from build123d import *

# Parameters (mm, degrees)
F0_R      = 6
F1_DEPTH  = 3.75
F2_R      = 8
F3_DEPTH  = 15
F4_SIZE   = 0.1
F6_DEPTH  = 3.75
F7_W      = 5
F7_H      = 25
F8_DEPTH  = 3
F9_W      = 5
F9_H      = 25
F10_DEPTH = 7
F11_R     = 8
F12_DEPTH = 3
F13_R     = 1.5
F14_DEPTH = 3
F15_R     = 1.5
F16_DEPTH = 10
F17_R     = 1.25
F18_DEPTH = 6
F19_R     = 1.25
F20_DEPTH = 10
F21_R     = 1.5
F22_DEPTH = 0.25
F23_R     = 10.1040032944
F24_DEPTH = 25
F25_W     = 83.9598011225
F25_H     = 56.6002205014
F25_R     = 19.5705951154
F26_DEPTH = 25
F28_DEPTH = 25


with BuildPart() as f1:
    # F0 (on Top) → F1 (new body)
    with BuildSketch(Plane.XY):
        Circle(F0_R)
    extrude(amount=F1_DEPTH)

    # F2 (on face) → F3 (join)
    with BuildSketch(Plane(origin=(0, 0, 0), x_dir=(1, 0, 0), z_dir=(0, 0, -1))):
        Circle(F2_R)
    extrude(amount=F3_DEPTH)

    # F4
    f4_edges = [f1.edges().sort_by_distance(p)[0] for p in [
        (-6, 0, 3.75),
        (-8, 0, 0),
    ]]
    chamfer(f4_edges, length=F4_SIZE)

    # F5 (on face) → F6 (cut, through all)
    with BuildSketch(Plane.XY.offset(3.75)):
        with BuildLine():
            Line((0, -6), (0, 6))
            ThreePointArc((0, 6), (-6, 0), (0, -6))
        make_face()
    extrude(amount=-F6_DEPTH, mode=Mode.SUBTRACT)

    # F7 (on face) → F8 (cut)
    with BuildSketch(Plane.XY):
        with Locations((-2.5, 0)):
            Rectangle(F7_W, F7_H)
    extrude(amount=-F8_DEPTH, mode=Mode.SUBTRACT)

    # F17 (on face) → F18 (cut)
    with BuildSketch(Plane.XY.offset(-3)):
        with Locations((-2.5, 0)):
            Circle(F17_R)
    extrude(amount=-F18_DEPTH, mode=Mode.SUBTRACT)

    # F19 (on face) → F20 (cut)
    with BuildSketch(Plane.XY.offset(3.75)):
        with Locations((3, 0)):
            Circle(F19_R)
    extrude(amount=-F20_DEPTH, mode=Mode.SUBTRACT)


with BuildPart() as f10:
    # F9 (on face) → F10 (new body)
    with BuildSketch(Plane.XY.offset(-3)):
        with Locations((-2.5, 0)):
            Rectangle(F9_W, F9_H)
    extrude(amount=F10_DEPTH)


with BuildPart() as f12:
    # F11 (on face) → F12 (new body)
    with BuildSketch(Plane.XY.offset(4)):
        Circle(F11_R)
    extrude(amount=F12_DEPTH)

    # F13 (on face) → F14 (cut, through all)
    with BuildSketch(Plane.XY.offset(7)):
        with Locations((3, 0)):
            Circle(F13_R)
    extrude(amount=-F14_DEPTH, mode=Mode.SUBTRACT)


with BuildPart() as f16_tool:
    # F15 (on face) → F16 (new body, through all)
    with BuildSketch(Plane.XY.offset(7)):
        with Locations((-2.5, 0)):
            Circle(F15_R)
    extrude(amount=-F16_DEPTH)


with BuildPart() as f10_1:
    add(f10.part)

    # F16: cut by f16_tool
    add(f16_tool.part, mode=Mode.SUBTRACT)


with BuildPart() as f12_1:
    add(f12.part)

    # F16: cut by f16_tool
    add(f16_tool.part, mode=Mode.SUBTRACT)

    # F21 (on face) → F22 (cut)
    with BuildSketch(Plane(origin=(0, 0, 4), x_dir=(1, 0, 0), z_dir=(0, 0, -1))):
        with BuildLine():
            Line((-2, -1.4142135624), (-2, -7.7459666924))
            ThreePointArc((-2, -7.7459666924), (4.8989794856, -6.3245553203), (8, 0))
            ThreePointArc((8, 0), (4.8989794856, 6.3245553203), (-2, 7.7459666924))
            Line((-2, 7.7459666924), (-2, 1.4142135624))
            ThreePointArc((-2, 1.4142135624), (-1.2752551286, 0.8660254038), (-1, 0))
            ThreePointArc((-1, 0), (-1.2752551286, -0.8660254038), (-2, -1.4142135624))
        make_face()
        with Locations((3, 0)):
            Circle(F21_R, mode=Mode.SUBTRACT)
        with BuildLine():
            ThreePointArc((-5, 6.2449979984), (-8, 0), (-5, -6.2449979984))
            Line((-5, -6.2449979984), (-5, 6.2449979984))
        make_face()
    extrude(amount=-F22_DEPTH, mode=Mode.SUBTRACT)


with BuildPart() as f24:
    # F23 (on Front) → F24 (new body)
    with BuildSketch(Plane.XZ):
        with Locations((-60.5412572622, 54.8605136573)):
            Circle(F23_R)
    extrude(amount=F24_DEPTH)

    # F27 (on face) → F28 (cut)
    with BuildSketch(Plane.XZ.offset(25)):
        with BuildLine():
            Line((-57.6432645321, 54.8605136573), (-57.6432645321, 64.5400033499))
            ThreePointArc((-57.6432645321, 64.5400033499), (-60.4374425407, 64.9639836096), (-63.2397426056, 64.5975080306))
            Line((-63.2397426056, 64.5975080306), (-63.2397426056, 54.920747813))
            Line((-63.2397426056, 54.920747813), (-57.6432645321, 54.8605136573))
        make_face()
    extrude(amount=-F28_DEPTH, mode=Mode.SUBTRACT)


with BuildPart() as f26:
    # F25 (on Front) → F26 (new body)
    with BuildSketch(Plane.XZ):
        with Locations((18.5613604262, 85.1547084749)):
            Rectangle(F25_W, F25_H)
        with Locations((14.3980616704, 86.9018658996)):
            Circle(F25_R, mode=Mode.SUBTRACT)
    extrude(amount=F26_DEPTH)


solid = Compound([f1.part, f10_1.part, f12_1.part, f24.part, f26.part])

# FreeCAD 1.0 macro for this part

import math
import FreeCAD as App
import Part
import Sketcher

V = App.Vector


def edges_at(feature, points):
    """Names of the edges that pass closest to the given points."""
    edges = feature.Shape.Edges
    near = lambda p: min(range(len(edges)), key=lambda i: edges[i].distToShape(Part.Vertex(*p))[0])
    return sorted({f"Edge{near(p) + 1}" for p in points})

doc = App.newDocument("Part")
body = doc.addObject("PartDesign::Body", "Body")

sketch1 = body.newObject("Sketcher::SketchObject", "Sketch")
sketch1.AttachmentSupport = (doc.getObject("XY_Plane"), [""])
sketch1.MapMode = "FlatFace"
sketch1.addGeometry(Part.Circle(V(0, 0, 0), V(0, 0, 1), 6), False)
sketch1.addConstraint(Sketcher.Constraint("Coincident", 0, 3, -1, 1))
sketch1.addConstraint(Sketcher.Constraint("Diameter", 0, 12.0))
pad1 = body.newObject("PartDesign::Pad", "Pad")
pad1.Profile = sketch1
pad1.Length = 3.75

sketch2 = body.newObject("Sketcher::SketchObject", "Sketch001")
sketch2.AttachmentSupport = (doc.getObject("XY_Plane"), [""])
sketch2.MapMode = "FlatFace"
sketch2.addGeometry(Part.Circle(V(0, 0, 0), V(0, 0, 1), 8), False)
sketch2.addConstraint(Sketcher.Constraint("Coincident", 0, 3, -1, 1))
sketch2.addConstraint(Sketcher.Constraint("Diameter", 0, 16.0))
pad2 = body.newObject("PartDesign::Pad", "Pad001")
pad2.Profile = sketch2
pad2.Length = 15
pad2.Reversed = True
doc.recompute()

chamfer = body.newObject("PartDesign::Chamfer", "Chamfer")
chamfer.Base = (pad2, edges_at(pad2, [(-6, 0, 3.75), (-8, 0, 0)]))
chamfer.Size = 0.1

sketch3 = body.newObject("Sketcher::SketchObject", "Sketch002")
sketch3.AttachmentSupport = (doc.getObject("XY_Plane"), [""])
sketch3.MapMode = "FlatFace"
sketch3.AttachmentOffset = App.Placement(V(0, 0, 3.75), App.Rotation())
sketch3.addGeometry(Part.LineSegment(V(0, -6, 0), V(0, 6, 0)), False)
sketch3.addGeometry(Part.ArcOfCircle(Part.Circle(V(0, 0, 0), V(0, 0, 1), 6), math.radians(90), math.radians(270)), False)
sketch3.addConstraint(Sketcher.Constraint("Coincident", 0, 1, 1, 2))
sketch3.addConstraint(Sketcher.Constraint("Coincident", 1, 1, 0, 2))
sketch3.addConstraint(Sketcher.Constraint("Vertical", 0))
sketch3.addConstraint(Sketcher.Constraint("Coincident", 1, 3, -1, 1))
sketch3.addConstraint(Sketcher.Constraint("PointOnObject", 0, 1, -2))
sketch3.addConstraint(Sketcher.Constraint("Radius", 1, 6.0))
pocket1 = body.newObject("PartDesign::Pocket", "Pocket")
pocket1.Profile = sketch3
pocket1.Length = 3.75

sketch4 = body.newObject("Sketcher::SketchObject", "Sketch003")
sketch4.AttachmentSupport = (doc.getObject("XY_Plane"), [""])
sketch4.MapMode = "FlatFace"
sketch4.addGeometry(Part.LineSegment(V(-5, 12, 0), V(-5, -12, 0)), False)
sketch4.addGeometry(Part.LineSegment(V(-5, -12, 0), V(0, -12, 0)), False)
sketch4.addGeometry(Part.LineSegment(V(0, -12, 0), V(0, 12, 0)), False)
sketch4.addGeometry(Part.LineSegment(V(0, 12, 0), V(-5, 12, 0)), False)
sketch4.addConstraint(Sketcher.Constraint("Coincident", 0, 2, 1, 1))
sketch4.addConstraint(Sketcher.Constraint("Coincident", 1, 2, 2, 1))
sketch4.addConstraint(Sketcher.Constraint("Coincident", 2, 2, 3, 1))
sketch4.addConstraint(Sketcher.Constraint("Coincident", 3, 2, 0, 1))
sketch4.addConstraint(Sketcher.Constraint("Vertical", 0))
sketch4.addConstraint(Sketcher.Constraint("Horizontal", 1))
sketch4.addConstraint(Sketcher.Constraint("Vertical", 2))
sketch4.addConstraint(Sketcher.Constraint("Horizontal", 3))
sketch4.addConstraint(Sketcher.Constraint("Symmetric", 1, 2, 2, 2, -1, 1))
sketch4.addConstraint(Sketcher.Constraint("DistanceX", 1, 1, 1, 2, 5.0))
sketch4.addConstraint(Sketcher.Constraint("DistanceY", 0, 2, 0, 1, 25.0))
pocket2 = body.newObject("PartDesign::Pocket", "Pocket001")
pocket2.Profile = sketch4
pocket2.Length = 3

sketch5 = body.newObject("Sketcher::SketchObject", "Sketch004")
sketch5.AttachmentSupport = (doc.getObject("XY_Plane"), [""])
sketch5.MapMode = "FlatFace"
sketch5.AttachmentOffset = App.Placement(V(0, 0, -3), App.Rotation())
sketch5.addGeometry(Part.Circle(V(-2.5, 0, 0), V(0, 0, 1), 1.2), False)
sketch5.addConstraint(Sketcher.Constraint("PointOnObject", 0, 3, -1))
sketch5.addConstraint(Sketcher.Constraint("Diameter", 0, 2.5))
sketch5.addConstraint(Sketcher.Constraint("DistanceX", 0, 3, -1, 1, 2.5))
pocket3 = body.newObject("PartDesign::Pocket", "Pocket002")
pocket3.Profile = sketch5
pocket3.Length = 6

sketch6 = body.newObject("Sketcher::SketchObject", "Sketch005")
sketch6.AttachmentSupport = (doc.getObject("XY_Plane"), [""])
sketch6.MapMode = "FlatFace"
sketch6.AttachmentOffset = App.Placement(V(0, 0, 3.75), App.Rotation())
sketch6.addGeometry(Part.Circle(V(3, 0, 0), V(0, 0, 1), 1.2), False)
sketch6.addConstraint(Sketcher.Constraint("PointOnObject", 0, 3, -1))
sketch6.addConstraint(Sketcher.Constraint("Diameter", 0, 2.5))
sketch6.addConstraint(Sketcher.Constraint("DistanceX", -1, 1, 0, 3, 3.0))
pocket4 = body.newObject("PartDesign::Pocket", "Pocket003")
pocket4.Profile = sketch6
pocket4.Length = 10
body2 = doc.addObject("PartDesign::Body", "Body001")

sketch7 = body2.newObject("Sketcher::SketchObject", "Sketch006")
sketch7.AttachmentSupport = (doc.getObject("XY_Plane001"), [""])
sketch7.MapMode = "FlatFace"
sketch7.AttachmentOffset = App.Placement(V(0, 0, -3), App.Rotation())
sketch7.addGeometry(Part.LineSegment(V(-5, 12, 0), V(-5, -12, 0)), False)
sketch7.addGeometry(Part.LineSegment(V(-5, -12, 0), V(0, -12, 0)), False)
sketch7.addGeometry(Part.LineSegment(V(0, -12, 0), V(0, 12, 0)), False)
sketch7.addGeometry(Part.LineSegment(V(0, 12, 0), V(-5, 12, 0)), False)
sketch7.addConstraint(Sketcher.Constraint("Coincident", 0, 2, 1, 1))
sketch7.addConstraint(Sketcher.Constraint("Coincident", 1, 2, 2, 1))
sketch7.addConstraint(Sketcher.Constraint("Coincident", 2, 2, 3, 1))
sketch7.addConstraint(Sketcher.Constraint("Coincident", 3, 2, 0, 1))
sketch7.addConstraint(Sketcher.Constraint("Vertical", 0))
sketch7.addConstraint(Sketcher.Constraint("Horizontal", 1))
sketch7.addConstraint(Sketcher.Constraint("Vertical", 2))
sketch7.addConstraint(Sketcher.Constraint("Horizontal", 3))
sketch7.addConstraint(Sketcher.Constraint("Symmetric", 1, 2, 2, 2, -1, 1))
sketch7.addConstraint(Sketcher.Constraint("DistanceX", 1, 1, 1, 2, 5.0))
sketch7.addConstraint(Sketcher.Constraint("DistanceY", 0, 2, 0, 1, 25.0))
pad3 = body2.newObject("PartDesign::Pad", "Pad002")
pad3.Profile = sketch7
pad3.Length = 7
body3 = doc.addObject("PartDesign::Body", "Body002")

sketch8 = body3.newObject("Sketcher::SketchObject", "Sketch007")
sketch8.AttachmentSupport = (doc.getObject("XY_Plane002"), [""])
sketch8.MapMode = "FlatFace"
sketch8.AttachmentOffset = App.Placement(V(0, 0, 4), App.Rotation())
sketch8.addGeometry(Part.Circle(V(0, 0, 0), V(0, 0, 1), 8), False)
sketch8.addConstraint(Sketcher.Constraint("Coincident", 0, 3, -1, 1))
sketch8.addConstraint(Sketcher.Constraint("Diameter", 0, 16.0))
pad4 = body3.newObject("PartDesign::Pad", "Pad003")
pad4.Profile = sketch8
pad4.Length = 3

sketch9 = body3.newObject("Sketcher::SketchObject", "Sketch008")
sketch9.AttachmentSupport = (doc.getObject("XY_Plane002"), [""])
sketch9.MapMode = "FlatFace"
sketch9.AttachmentOffset = App.Placement(V(0, 0, 7), App.Rotation())
sketch9.addGeometry(Part.Circle(V(3, 0, 0), V(0, 0, 1), 1.5), False)
sketch9.addConstraint(Sketcher.Constraint("PointOnObject", 0, 3, -1))
sketch9.addConstraint(Sketcher.Constraint("Diameter", 0, 3.0))
sketch9.addConstraint(Sketcher.Constraint("DistanceX", -1, 1, 0, 3, 3.0))
pocket5 = body3.newObject("PartDesign::Pocket", "Pocket004")
pocket5.Profile = sketch9
pocket5.Type = "ThroughAll"
body4 = doc.addObject("PartDesign::Body", "Body003")

sketch10 = body4.newObject("Sketcher::SketchObject", "Sketch009")
sketch10.AttachmentSupport = (doc.getObject("XY_Plane003"), [""])
sketch10.MapMode = "FlatFace"
sketch10.AttachmentOffset = App.Placement(V(0, 0, 7), App.Rotation())
sketch10.addGeometry(Part.Circle(V(-2.5, 0, 0), V(0, 0, 1), 1.5), False)
sketch10.addConstraint(Sketcher.Constraint("PointOnObject", 0, 3, -1))
sketch10.addConstraint(Sketcher.Constraint("Diameter", 0, 3.0))
sketch10.addConstraint(Sketcher.Constraint("DistanceX", 0, 3, -1, 1, 2.5))
pad5 = body4.newObject("PartDesign::Pad", "Pad004")
pad5.Profile = sketch10
pad5.Length = 10
pad5.Reversed = True
doc.recompute()

body5 = doc.addObject("PartDesign::Body", "Body004")
body5.BaseFeature = body4
boolean = body2.newObject("PartDesign::Boolean", "Boolean")
boolean.Type = "Cut"
boolean.addObjects([body5])
doc.recompute()

boolean2 = body3.newObject("PartDesign::Boolean", "Boolean001")
boolean2.Type = "Cut"
boolean2.addObjects([body4])

sketch11 = body3.newObject("Sketcher::SketchObject", "Sketch010")
sketch11.AttachmentSupport = (doc.getObject("XY_Plane002"), [""])
sketch11.MapMode = "FlatFace"
sketch11.AttachmentOffset = App.Placement(V(0, 0, 4), App.Rotation())
sketch11.addGeometry(Part.LineSegment(V(-2, 1.4, 0), V(-2, 7.7, 0)), False)
sketch11.addGeometry(Part.ArcOfCircle(Part.Circle(V(0, 0, 0), V(0, 0, 1), 8), math.radians(0), math.radians(104)), False)
sketch11.addGeometry(Part.ArcOfCircle(Part.Circle(V(0, 0, 0), V(0, 0, 1), 8), math.radians(-104), math.radians(0)), False)
sketch11.addGeometry(Part.LineSegment(V(-2, -7.7, 0), V(-2, -1.4, 0)), False)
sketch11.addGeometry(Part.ArcOfCircle(Part.Circle(V(-2.5, 0, 0), V(0, 0, 1), 1.5), math.radians(-71), math.radians(0)), False)
sketch11.addGeometry(Part.ArcOfCircle(Part.Circle(V(-2.5, 0, 0), V(0, 0, 1), 1.5), math.radians(0), math.radians(71)), False)
sketch11.addGeometry(Part.Circle(V(3, 0, 0), V(0, 0, 1), 1.5), False)
sketch11.addGeometry(Part.ArcOfCircle(Part.Circle(V(0, 0, 0), V(0, 0, 1), 8), math.radians(129), math.radians(231)), False)
sketch11.addGeometry(Part.LineSegment(V(-5, 6.2, 0), V(-5, -6.2, 0)), False)
sketch11.addConstraint(Sketcher.Constraint("Coincident", 0, 2, 1, 2))
sketch11.addConstraint(Sketcher.Constraint("Tangent", 1, 1, 2, 2))
sketch11.addConstraint(Sketcher.Constraint("Coincident", 2, 1, 3, 1))
sketch11.addConstraint(Sketcher.Constraint("Coincident", 3, 2, 4, 1))
sketch11.addConstraint(Sketcher.Constraint("Tangent", 4, 2, 5, 1))
sketch11.addConstraint(Sketcher.Constraint("Coincident", 5, 2, 0, 1))
sketch11.addConstraint(Sketcher.Constraint("Coincident", 7, 1, 8, 1))
sketch11.addConstraint(Sketcher.Constraint("Coincident", 8, 2, 7, 2))
sketch11.addConstraint(Sketcher.Constraint("Vertical", 0))
sketch11.addConstraint(Sketcher.Constraint("Vertical", 3))
sketch11.addConstraint(Sketcher.Constraint("Vertical", 8))
sketch11.addConstraint(Sketcher.Constraint("Coincident", 1, 3, -1, 1))
sketch11.addConstraint(Sketcher.Constraint("Coincident", 7, 3, -1, 1))
sketch11.addConstraint(Sketcher.Constraint("Equal", 1, 2))
sketch11.addConstraint(Sketcher.Constraint("Equal", 4, 5))
sketch11.addConstraint(Sketcher.Constraint("Equal", 5, 6))
sketch11.addConstraint(Sketcher.Constraint("Equal", 2, 7))
sketch11.addConstraint(Sketcher.Constraint("Symmetric", 3, 2, 5, 2, -1))
sketch11.addConstraint(Sketcher.Constraint("PointOnObject", 6, 3, -1))
sketch11.addConstraint(Sketcher.Constraint("PointOnObject", 1, 1, -1))
sketch11.addConstraint(Sketcher.Constraint("PointOnObject", 4, 2, -1))
sketch11.addConstraint(Sketcher.Constraint("Diameter", 6, 3.0))
sketch11.addConstraint(Sketcher.Constraint("Radius", 1, 8.0))
sketch11.addConstraint(Sketcher.Constraint("DistanceX", -1, 1, 6, 3, 3.0))
sketch11.addConstraint(Sketcher.Constraint("DistanceX", 0, 2, -1, 1, 2.0))
sketch11.addConstraint(Sketcher.Constraint("DistanceX", 4, 2, -1, 1, 1.0))
sketch11.addConstraint(Sketcher.Constraint("DistanceX", 7, 1, -1, 1, 5.0))
pocket6 = body3.newObject("PartDesign::Pocket", "Pocket005")
pocket6.Profile = sketch11
pocket6.Length = 0.25
pocket6.Reversed = True
body6 = doc.addObject("PartDesign::Body", "Body005")

sketch12 = body6.newObject("Sketcher::SketchObject", "Sketch011")
sketch12.AttachmentSupport = (doc.getObject("XZ_Plane005"), [""])
sketch12.MapMode = "FlatFace"
sketch12.addGeometry(Part.Circle(V(-61, 55, 0), V(0, 0, 1), 10), False)
sketch12.addConstraint(Sketcher.Constraint("Diameter", 0, 20.208007))
sketch12.addConstraint(Sketcher.Constraint("DistanceX", 0, 3, -1, 1, 60.541257))
sketch12.addConstraint(Sketcher.Constraint("DistanceY", -1, 1, 0, 3, 54.860514))
pad6 = body6.newObject("PartDesign::Pad", "Pad005")
pad6.Profile = sketch12
pad6.Length = 25

sketch13 = body6.newObject("Sketcher::SketchObject", "Sketch012")
sketch13.AttachmentSupport = (doc.getObject("XZ_Plane005"), [""])
sketch13.MapMode = "FlatFace"
sketch13.AttachmentOffset = App.Placement(V(0, 0, 25), App.Rotation())
sketch13.addGeometry(Part.LineSegment(V(-58, 55, 0), V(-58, 65, 0)), False)
sketch13.addGeometry(Part.ArcOfCircle(Part.Circle(V(-61, 55, 0), V(0, 0, 1), 10), math.radians(73), math.radians(105)), False)
sketch13.addGeometry(Part.LineSegment(V(-63, 65, 0), V(-63, 55, 0)), False)
sketch13.addGeometry(Part.LineSegment(V(-63, 55, 0), V(-58, 55, 0)), False)
sketch13.addConstraint(Sketcher.Constraint("Coincident", 0, 2, 1, 1))
sketch13.addConstraint(Sketcher.Constraint("Coincident", 1, 2, 2, 1))
sketch13.addConstraint(Sketcher.Constraint("Coincident", 2, 2, 3, 1))
sketch13.addConstraint(Sketcher.Constraint("Coincident", 3, 2, 0, 1))
sketch13.addConstraint(Sketcher.Constraint("Vertical", 0))
sketch13.addConstraint(Sketcher.Constraint("Vertical", 2))
sketch13.addConstraint(Sketcher.Constraint("Horizontal", 1, 3, 3, 2))
sketch13.addConstraint(Sketcher.Constraint("Radius", 1, 10.104003))
sketch13.addConstraint(Sketcher.Constraint("DistanceY", 0, 1, 0, 2, 9.67949))
sketch13.addConstraint(Sketcher.Constraint("DistanceY", 2, 2, 2, 1, 9.67676))
sketch13.addConstraint(Sketcher.Constraint("DistanceY", -1, 1, 1, 2, 64.597508))
sketch13.addConstraint(Sketcher.Constraint("DistanceX", 1, 2, 0, 2, 5.596478))
sketch13.addConstraint(Sketcher.Constraint("DistanceX", 1, 3, -1, 1, 60.541257))
pocket7 = body6.newObject("PartDesign::Pocket", "Pocket006")
pocket7.Profile = sketch13
pocket7.Length = 25
body7 = doc.addObject("PartDesign::Body", "Body006")

sketch14 = body7.newObject("Sketcher::SketchObject", "Sketch013")
sketch14.AttachmentSupport = (doc.getObject("XZ_Plane006"), [""])
sketch14.MapMode = "FlatFace"
sketch14.addGeometry(Part.LineSegment(V(-23, 113, 0), V(-23, 57, 0)), False)
sketch14.addGeometry(Part.LineSegment(V(-23, 57, 0), V(61, 57, 0)), False)
sketch14.addGeometry(Part.LineSegment(V(61, 57, 0), V(61, 113, 0)), False)
sketch14.addGeometry(Part.LineSegment(V(61, 113, 0), V(-23, 113, 0)), False)
sketch14.addGeometry(Part.Circle(V(14, 87, 0), V(0, 0, 1), 20), False)
sketch14.addConstraint(Sketcher.Constraint("Coincident", 0, 2, 1, 1))
sketch14.addConstraint(Sketcher.Constraint("Coincident", 1, 2, 2, 1))
sketch14.addConstraint(Sketcher.Constraint("Coincident", 2, 2, 3, 1))
sketch14.addConstraint(Sketcher.Constraint("Coincident", 3, 2, 0, 1))
sketch14.addConstraint(Sketcher.Constraint("Vertical", 0))
sketch14.addConstraint(Sketcher.Constraint("Horizontal", 1))
sketch14.addConstraint(Sketcher.Constraint("Vertical", 2))
sketch14.addConstraint(Sketcher.Constraint("Horizontal", 3))
sketch14.addConstraint(Sketcher.Constraint("Diameter", 4, 39.14119))
sketch14.addConstraint(Sketcher.Constraint("DistanceX", 1, 1, 1, 2, 83.959801))
sketch14.addConstraint(Sketcher.Constraint("DistanceY", 0, 2, 0, 1, 56.600221))
sketch14.addConstraint(Sketcher.Constraint("DistanceY", -1, 1, 0, 2, 56.854598))
sketch14.addConstraint(Sketcher.Constraint("DistanceX", 0, 2, 4, 3, 37.816602))
sketch14.addConstraint(Sketcher.Constraint("DistanceX", -1, 1, 4, 3, 14.398062))
sketch14.addConstraint(Sketcher.Constraint("DistanceY", -1, 1, 4, 3, 86.901866))
pad7 = body7.newObject("PartDesign::Pad", "Pad006")
pad7.Profile = sketch14
pad7.Length = 25

doc.recompute()
